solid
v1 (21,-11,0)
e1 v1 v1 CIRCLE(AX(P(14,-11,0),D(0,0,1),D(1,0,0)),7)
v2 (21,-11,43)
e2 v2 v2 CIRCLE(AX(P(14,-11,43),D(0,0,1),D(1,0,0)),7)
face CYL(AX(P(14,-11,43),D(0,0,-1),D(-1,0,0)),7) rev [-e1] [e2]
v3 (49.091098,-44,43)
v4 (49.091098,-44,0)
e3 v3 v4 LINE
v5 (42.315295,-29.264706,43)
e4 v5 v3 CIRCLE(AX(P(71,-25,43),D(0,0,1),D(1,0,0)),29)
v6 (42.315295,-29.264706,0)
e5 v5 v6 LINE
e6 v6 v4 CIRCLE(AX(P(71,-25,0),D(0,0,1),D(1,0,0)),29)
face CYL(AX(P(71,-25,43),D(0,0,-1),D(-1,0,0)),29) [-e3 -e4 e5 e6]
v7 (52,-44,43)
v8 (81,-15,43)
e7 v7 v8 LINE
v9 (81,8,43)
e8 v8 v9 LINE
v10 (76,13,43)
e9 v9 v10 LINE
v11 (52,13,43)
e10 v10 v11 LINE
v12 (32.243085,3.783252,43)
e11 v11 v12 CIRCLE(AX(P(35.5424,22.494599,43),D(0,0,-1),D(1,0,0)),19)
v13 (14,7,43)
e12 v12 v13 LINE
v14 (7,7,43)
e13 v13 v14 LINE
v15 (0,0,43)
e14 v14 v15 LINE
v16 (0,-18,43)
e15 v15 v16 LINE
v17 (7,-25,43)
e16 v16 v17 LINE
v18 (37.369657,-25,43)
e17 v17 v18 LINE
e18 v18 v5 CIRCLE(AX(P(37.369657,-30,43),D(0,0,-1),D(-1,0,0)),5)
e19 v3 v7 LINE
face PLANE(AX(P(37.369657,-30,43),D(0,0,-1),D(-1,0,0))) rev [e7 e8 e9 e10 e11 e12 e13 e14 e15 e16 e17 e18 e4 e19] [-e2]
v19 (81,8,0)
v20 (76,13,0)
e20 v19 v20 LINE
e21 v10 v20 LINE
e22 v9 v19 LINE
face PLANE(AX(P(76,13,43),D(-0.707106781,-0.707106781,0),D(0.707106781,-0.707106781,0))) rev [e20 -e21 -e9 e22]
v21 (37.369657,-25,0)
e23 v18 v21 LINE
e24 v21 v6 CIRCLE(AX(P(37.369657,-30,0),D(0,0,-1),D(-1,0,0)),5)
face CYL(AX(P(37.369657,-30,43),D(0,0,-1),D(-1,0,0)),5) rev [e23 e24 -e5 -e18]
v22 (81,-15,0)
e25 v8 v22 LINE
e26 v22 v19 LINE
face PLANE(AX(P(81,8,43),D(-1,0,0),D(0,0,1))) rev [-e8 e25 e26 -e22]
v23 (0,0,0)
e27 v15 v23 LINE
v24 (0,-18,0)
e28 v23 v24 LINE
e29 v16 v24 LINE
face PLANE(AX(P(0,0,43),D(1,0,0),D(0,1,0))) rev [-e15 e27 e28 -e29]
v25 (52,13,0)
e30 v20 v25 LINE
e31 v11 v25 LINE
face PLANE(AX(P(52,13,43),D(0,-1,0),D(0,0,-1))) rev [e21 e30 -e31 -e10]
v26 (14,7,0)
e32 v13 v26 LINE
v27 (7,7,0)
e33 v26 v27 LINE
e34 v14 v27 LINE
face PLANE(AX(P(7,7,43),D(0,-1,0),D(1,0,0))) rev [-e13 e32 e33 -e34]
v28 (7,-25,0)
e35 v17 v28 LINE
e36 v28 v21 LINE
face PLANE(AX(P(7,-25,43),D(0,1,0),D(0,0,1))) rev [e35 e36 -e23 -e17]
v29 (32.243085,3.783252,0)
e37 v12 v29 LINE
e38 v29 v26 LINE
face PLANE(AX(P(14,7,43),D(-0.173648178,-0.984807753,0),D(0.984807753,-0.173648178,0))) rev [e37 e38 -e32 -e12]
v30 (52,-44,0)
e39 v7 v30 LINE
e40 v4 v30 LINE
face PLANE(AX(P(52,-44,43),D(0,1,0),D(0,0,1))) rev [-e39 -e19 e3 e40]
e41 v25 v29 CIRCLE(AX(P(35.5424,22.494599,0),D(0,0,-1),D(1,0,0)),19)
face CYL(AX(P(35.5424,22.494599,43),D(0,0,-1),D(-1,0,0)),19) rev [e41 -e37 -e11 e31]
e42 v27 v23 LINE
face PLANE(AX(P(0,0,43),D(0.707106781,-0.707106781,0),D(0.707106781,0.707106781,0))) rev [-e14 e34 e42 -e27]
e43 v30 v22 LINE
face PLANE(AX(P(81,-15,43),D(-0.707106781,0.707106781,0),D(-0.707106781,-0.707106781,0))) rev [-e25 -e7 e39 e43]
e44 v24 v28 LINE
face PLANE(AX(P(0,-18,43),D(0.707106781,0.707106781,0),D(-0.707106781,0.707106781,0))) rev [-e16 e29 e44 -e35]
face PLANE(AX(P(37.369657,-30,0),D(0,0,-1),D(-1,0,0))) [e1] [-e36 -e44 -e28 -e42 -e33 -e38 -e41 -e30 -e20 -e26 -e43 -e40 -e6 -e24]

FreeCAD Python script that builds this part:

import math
import FreeCAD as App
import Part
import Sketcher
Q = App.Units.Quantity

doc = App.newDocument("Part")
body = doc.addObject("PartDesign::Body", "Body")

# Sketch on XY plane
sketch1 = body.newObject("Sketcher::SketchObject", "Sketch")
sketch1.AttachmentSupport = (doc.getObject("XY_Plane"), [""])
sketch1.MapMode = "FlatFace"
sketch1.addGeometry([
    Part.LineSegment(App.Vector(7, 7, 0), App.Vector(0, 0, 0)),  # 0
    Part.LineSegment(App.Vector(0, 0, 0), App.Vector(0, -18, 0)),  # 1
    Part.LineSegment(App.Vector(0, -18, 0), App.Vector(7, -25, 0)),  # 2
    Part.LineSegment(App.Vector(7, -25, 0), App.Vector(37.4, -25, 0)),  # 3
    Part.ArcOfCircle(Part.Circle(App.Vector(37.4, -30, 0), App.Vector(0, 0, 1), 5), math.radians(8), math.radians(90)),  # 4
    Part.ArcOfCircle(Part.Circle(App.Vector(71, -25, 0), App.Vector(0, 0, 1), 29), math.radians(-172), math.radians(-139)),  # 5
    Part.LineSegment(App.Vector(49.1, -44, 0), App.Vector(52, -44, 0)),  # 6
    Part.LineSegment(App.Vector(52, -44, 0), App.Vector(81, -15, 0)),  # 7
    Part.LineSegment(App.Vector(81, -15, 0), App.Vector(81, 8, 0)),  # 8
    Part.LineSegment(App.Vector(81, 8, 0), App.Vector(76, 13, 0)),  # 9
    Part.LineSegment(App.Vector(76, 13, 0), App.Vector(52, 13, 0)),  # 10
    Part.ArcOfCircle(Part.Circle(App.Vector(35.5, 22.5, 0), App.Vector(0, 0, 1), 19), math.radians(-100), math.radians(-30)),  # 11
    Part.LineSegment(App.Vector(32.2, 3.8, 0), App.Vector(14, 7, 0)),  # 12
    Part.LineSegment(App.Vector(14, 7, 0), App.Vector(7, 7, 0)),  # 13
    Part.Circle(App.Vector(14, -11, 0), App.Vector(0, 0, 1), 7),  # 14
], False)
sketch1.addConstraint([
    Sketcher.Constraint("Coincident", 0, 2, 1, 1),
    Sketcher.Constraint("Coincident", 1, 2, 2, 1),
    Sketcher.Constraint("Coincident", 2, 2, 3, 1),
    Sketcher.Constraint("Tangent", 3, 2, 4, 2),
    Sketcher.Constraint("Tangent", 4, 1, 5, 1),
    Sketcher.Constraint("Coincident", 5, 2, 6, 1),
    Sketcher.Constraint("Coincident", 6, 2, 7, 1),
    Sketcher.Constraint("Coincident", 7, 2, 8, 1),
    Sketcher.Constraint("Coincident", 8, 2, 9, 1),
    Sketcher.Constraint("Coincident", 9, 2, 10, 1),
    Sketcher.Constraint("Coincident", 10, 2, 11, 2),
    Sketcher.Constraint("Tangent", 11, 1, 12, 1),
    Sketcher.Constraint("Coincident", 12, 2, 13, 1),
    Sketcher.Constraint("Coincident", 13, 2, 0, 1),
    Sketcher.Constraint("Vertical", 1),
    Sketcher.Constraint("Horizontal", 3),
    Sketcher.Constraint("Horizontal", 6),
    Sketcher.Constraint("Vertical", 8),
    Sketcher.Constraint("Horizontal", 10),
    Sketcher.Constraint("Horizontal", 13),
    Sketcher.Constraint("Coincident", 0, 2, -1, 1),
    Sketcher.Constraint("Perpendicular", 0, 2),
    Sketcher.Constraint("Perpendicular", 2, 7),
    Sketcher.Constraint("Perpendicular", 7, 9),
    Sketcher.Constraint("Horizontal", 5, 3, 2, 2),
    Sketcher.Constraint("Vertical", 6, 2, 10, 2),
    Sketcher.Constraint("Vertical", 14, 3, 12, 2),
    Sketcher.Constraint("Vertical", 2, 2, 13, 2),
    Sketcher.Constraint("Equal", 0, 2),
    Sketcher.Constraint("Diameter", 14, Q("14 mm")),
    Sketcher.Constraint("Radius", 4, Q("5 mm")),
    Sketcher.Constraint("Radius", 5, Q("29 mm")),
    Sketcher.Constraint("Radius", 11, Q("19 mm")),
    Sketcher.Constraint("DistanceX", 10, 2, 10, 1, Q("24 mm")),
    Sketcher.Constraint("DistanceX", 13, 2, 13, 1, Q("7 mm")),
    Sketcher.Constraint("DistanceY", 1, 2, 1, 1, Q("18 mm")),
    Sketcher.Constraint("DistanceY", 8, 1, 8, 2, Q("23 mm")),
    Sketcher.Constraint("Angle", 12, Q("170 deg")),
    Sketcher.Constraint("DistanceY", 4, 3, -1, 1, Q("30 mm")),
    Sketcher.Constraint("DistanceX", -1, 1, 5, 3, Q("71 mm")),
    Sketcher.Constraint("DistanceY", 14, 3, -1, 1, Q("11 mm")),
    Sketcher.Constraint("DistanceY", 5, 2, -1, 1, Q("44 mm")),
    Sketcher.Constraint("DistanceX", -1, 1, 6, 2, Q("52 mm")),
    Sketcher.Constraint("DistanceX", -1, 1, 7, 2, Q("81 mm")),
])
pad1 = body.newObject("PartDesign::Pad", "Pad")
pad1.Profile = sketch1
pad1.Length = 43

doc.recompute()
